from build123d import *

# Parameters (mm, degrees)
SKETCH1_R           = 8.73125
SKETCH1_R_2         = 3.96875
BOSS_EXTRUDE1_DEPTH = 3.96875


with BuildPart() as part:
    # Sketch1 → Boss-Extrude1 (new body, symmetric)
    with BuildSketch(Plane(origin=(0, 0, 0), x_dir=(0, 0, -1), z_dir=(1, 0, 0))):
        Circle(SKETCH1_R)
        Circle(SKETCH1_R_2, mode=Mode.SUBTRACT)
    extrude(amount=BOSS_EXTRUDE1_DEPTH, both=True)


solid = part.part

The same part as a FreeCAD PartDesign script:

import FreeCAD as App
import Part
import Sketcher
Q = App.Units.Quantity

doc = App.newDocument("Part")
body = doc.addObject("PartDesign::Body", "Body")

# Sketch on YZ plane
sketch1 = body.newObject("Sketcher::SketchObject", "Sketch")
sketch1.AttachmentSupport = (doc.getObject("YZ_Plane"), [""])
sketch1.MapMode = "FlatFace"
sketch1.addGeometry(Part.Circle(App.Vector(0, 0, 0), App.Vector(0, 0, 1), 8.7), False)
sketch1.addGeometry(Part.Circle(App.Vector(0, 0, 0), App.Vector(0, 0, 1), 4), False)
sketch1.addConstraint(Sketcher.Constraint("Coincident", 0, 3, -1, 1))
sketch1.addConstraint(Sketcher.Constraint("Coincident", 1, 3, -1, 1))
sketch1.addConstraint(Sketcher.Constraint("Diameter", 0, Q("0.6875 in")))
sketch1.addConstraint(Sketcher.Constraint("Diameter", 1, Q("0.3125 in")))
pad1 = body.newObject("PartDesign::Pad", "Pad")
pad1.Profile = sketch1
pad1.Length = Q("0.3125 in")
pad1.Midplane = True

doc.recompute()
